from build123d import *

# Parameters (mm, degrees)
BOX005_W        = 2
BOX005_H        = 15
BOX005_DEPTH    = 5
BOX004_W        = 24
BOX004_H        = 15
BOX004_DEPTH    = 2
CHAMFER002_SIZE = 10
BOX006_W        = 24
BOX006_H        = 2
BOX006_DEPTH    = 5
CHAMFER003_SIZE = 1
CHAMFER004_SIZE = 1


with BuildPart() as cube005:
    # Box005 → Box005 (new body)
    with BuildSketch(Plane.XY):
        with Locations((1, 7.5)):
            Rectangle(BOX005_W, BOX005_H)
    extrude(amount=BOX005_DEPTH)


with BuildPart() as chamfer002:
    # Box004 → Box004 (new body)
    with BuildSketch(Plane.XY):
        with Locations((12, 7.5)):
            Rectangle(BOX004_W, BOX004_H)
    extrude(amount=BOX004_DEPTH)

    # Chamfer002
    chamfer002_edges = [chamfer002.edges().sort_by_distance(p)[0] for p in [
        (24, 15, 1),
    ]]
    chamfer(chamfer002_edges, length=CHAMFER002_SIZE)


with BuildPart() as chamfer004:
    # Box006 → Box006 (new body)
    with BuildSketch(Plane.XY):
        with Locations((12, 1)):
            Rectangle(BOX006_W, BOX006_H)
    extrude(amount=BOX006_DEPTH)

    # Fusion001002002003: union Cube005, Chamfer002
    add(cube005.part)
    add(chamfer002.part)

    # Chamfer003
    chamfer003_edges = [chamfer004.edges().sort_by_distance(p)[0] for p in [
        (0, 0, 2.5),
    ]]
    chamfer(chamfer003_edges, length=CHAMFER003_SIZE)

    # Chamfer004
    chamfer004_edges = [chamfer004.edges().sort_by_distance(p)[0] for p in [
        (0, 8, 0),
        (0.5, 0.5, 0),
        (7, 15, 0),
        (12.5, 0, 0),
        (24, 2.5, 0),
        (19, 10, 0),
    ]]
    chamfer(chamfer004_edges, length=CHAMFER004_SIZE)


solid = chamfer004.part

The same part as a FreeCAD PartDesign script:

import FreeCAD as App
import Part
import Sketcher
Q = App.Units.Quantity


def edges_at(feature, points):
    """Names of the edges that pass closest to the given points."""
    edges = feature.Shape.Edges
    near = lambda p: min(range(len(edges)), key=lambda i: edges[i].distToShape(Part.Vertex(*p))[0])
    return sorted({f"Edge{near(p) + 1}" for p in points})

doc = App.newDocument("Part")
body = doc.addObject("PartDesign::Body", "Body")

# Sketch on XY plane
sketch1 = body.newObject("Sketcher::SketchObject", "Sketch")
sketch1.AttachmentSupport = (doc.getObject("XY_Plane"), [""])
sketch1.MapMode = "FlatFace"
sketch1.addGeometry([
    Part.LineSegment(App.Vector(0, 15, 0), App.Vector(0, 0, 0)),
    Part.LineSegment(App.Vector(0, 0, 0), App.Vector(2, 0, 0)),
    Part.LineSegment(App.Vector(2, 0, 0), App.Vector(2, 15, 0)),
    Part.LineSegment(App.Vector(2, 15, 0), App.Vector(0, 15, 0)),
], False)
sketch1.addConstraint([
    Sketcher.Constraint("Coincident", 0, 2, 1, 1),
    Sketcher.Constraint("Coincident", 1, 2, 2, 1),
    Sketcher.Constraint("Coincident", 2, 2, 3, 1),
    Sketcher.Constraint("Coincident", 3, 2, 0, 1),
    Sketcher.Constraint("Vertical", 0),
    Sketcher.Constraint("Horizontal", 1),
    Sketcher.Constraint("Vertical", 2),
    Sketcher.Constraint("Horizontal", 3),
    Sketcher.Constraint("Coincident", 0, 2, -1, 1),
    Sketcher.Constraint("DistanceX", 1, 1, 1, 2, Q("2 mm")),
    Sketcher.Constraint("DistanceY", 0, 2, 0, 1, Q("15 mm")),
])
pad1 = body.newObject("PartDesign::Pad", "Pad")
pad1.Profile = sketch1
pad1.Length = 5
body2 = doc.addObject("PartDesign::Body", "Body001")

# Sketch on XY plane
sketch2 = body2.newObject("Sketcher::SketchObject", "Sketch001")
sketch2.AttachmentSupport = (doc.getObject("XY_Plane001"), [""])
sketch2.MapMode = "FlatFace"
sketch2.addGeometry([
    Part.LineSegment(App.Vector(0, 15, 0), App.Vector(0, 0, 0)),
    Part.LineSegment(App.Vector(0, 0, 0), App.Vector(24, 0, 0)),
    Part.LineSegment(App.Vector(24, 0, 0), App.Vector(24, 15, 0)),
    Part.LineSegment(App.Vector(24, 15, 0), App.Vector(0, 15, 0)),
], False)
sketch2.addConstraint([
    Sketcher.Constraint("Coincident", 0, 2, 1, 1),
    Sketcher.Constraint("Coincident", 1, 2, 2, 1),
    Sketcher.Constraint("Coincident", 2, 2, 3, 1),
    Sketcher.Constraint("Coincident", 3, 2, 0, 1),
    Sketcher.Constraint("Vertical", 0),
    Sketcher.Constraint("Horizontal", 1),
    Sketcher.Constraint("Vertical", 2),
    Sketcher.Constraint("Horizontal", 3),
    Sketcher.Constraint("Coincident", 0, 2, -1, 1),
    Sketcher.Constraint("DistanceX", 1, 1, 1, 2, Q("24 mm")),
    Sketcher.Constraint("DistanceY", 0, 2, 0, 1, Q("15 mm")),
])
pad2 = body2.newObject("PartDesign::Pad", "Pad001")
pad2.Profile = sketch2
pad2.Length = 2
doc.recompute()

chamfer = body2.newObject("PartDesign::Chamfer", "Chamfer")
chamfer.Base = (pad2, edges_at(pad2, [(24, 15, 1)]))
chamfer.Size = 10
body3 = doc.addObject("PartDesign::Body", "Body002")

# Sketch on XY plane
sketch3 = body3.newObject("Sketcher::SketchObject", "Sketch002")
sketch3.AttachmentSupport = (doc.getObject("XY_Plane002"), [""])
sketch3.MapMode = "FlatFace"
sketch3.addGeometry([
    Part.LineSegment(App.Vector(0, 2, 0), App.Vector(0, 0, 0)),
    Part.LineSegment(App.Vector(0, 0, 0), App.Vector(24, 0, 0)),
    Part.LineSegment(App.Vector(24, 0, 0), App.Vector(24, 2, 0)),
    Part.LineSegment(App.Vector(24, 2, 0), App.Vector(0, 2, 0)),
], False)
sketch3.addConstraint([
    Sketcher.Constraint("Coincident", 0, 2, 1, 1),
    Sketcher.Constraint("Coincident", 1, 2, 2, 1),
    Sketcher.Constraint("Coincident", 2, 2, 3, 1),
    Sketcher.Constraint("Coincident", 3, 2, 0, 1),
    Sketcher.Constraint("Vertical", 0),
    Sketcher.Constraint("Horizontal", 1),
    Sketcher.Constraint("Vertical", 2),
    Sketcher.Constraint("Horizontal", 3),
    Sketcher.Constraint("Coincident", 0, 2, -1, 1),
    Sketcher.Constraint("DistanceX", 1, 1, 1, 2, Q("24 mm")),
    Sketcher.Constraint("DistanceY", 0, 2, 0, 1, Q("2 mm")),
])
pad3 = body3.newObject("PartDesign::Pad", "Pad002")
pad3.Profile = sketch3
pad3.Length = 5
doc.recompute()

boolean = body3.newObject("PartDesign::Boolean", "Boolean")
boolean.Type = "Fuse"
boolean.addObjects([body])
doc.recompute()

boolean2 = body3.newObject("PartDesign::Boolean", "Boolean001")
boolean2.Type = "Fuse"
boolean2.addObjects([body2])
doc.recompute()

chamfer2 = body3.newObject("PartDesign::Chamfer", "Chamfer001")
chamfer2.Base = (boolean2, edges_at(boolean2, [(0, 0, 2.5)]))
chamfer2.Size = 1
doc.recompute()

chamfer3 = body3.newObject("PartDesign::Chamfer", "Chamfer002")
chamfer3.Base = (chamfer2, edges_at(chamfer2, [
    (0, 8, 0),
    (0.5, 0.5, 0),
    (7, 15, 0),
    (12.5, 0, 0),
    (24, 2.5, 0),
    (19, 10, 0),
]))
chamfer3.Size = 1

doc.recompute()
